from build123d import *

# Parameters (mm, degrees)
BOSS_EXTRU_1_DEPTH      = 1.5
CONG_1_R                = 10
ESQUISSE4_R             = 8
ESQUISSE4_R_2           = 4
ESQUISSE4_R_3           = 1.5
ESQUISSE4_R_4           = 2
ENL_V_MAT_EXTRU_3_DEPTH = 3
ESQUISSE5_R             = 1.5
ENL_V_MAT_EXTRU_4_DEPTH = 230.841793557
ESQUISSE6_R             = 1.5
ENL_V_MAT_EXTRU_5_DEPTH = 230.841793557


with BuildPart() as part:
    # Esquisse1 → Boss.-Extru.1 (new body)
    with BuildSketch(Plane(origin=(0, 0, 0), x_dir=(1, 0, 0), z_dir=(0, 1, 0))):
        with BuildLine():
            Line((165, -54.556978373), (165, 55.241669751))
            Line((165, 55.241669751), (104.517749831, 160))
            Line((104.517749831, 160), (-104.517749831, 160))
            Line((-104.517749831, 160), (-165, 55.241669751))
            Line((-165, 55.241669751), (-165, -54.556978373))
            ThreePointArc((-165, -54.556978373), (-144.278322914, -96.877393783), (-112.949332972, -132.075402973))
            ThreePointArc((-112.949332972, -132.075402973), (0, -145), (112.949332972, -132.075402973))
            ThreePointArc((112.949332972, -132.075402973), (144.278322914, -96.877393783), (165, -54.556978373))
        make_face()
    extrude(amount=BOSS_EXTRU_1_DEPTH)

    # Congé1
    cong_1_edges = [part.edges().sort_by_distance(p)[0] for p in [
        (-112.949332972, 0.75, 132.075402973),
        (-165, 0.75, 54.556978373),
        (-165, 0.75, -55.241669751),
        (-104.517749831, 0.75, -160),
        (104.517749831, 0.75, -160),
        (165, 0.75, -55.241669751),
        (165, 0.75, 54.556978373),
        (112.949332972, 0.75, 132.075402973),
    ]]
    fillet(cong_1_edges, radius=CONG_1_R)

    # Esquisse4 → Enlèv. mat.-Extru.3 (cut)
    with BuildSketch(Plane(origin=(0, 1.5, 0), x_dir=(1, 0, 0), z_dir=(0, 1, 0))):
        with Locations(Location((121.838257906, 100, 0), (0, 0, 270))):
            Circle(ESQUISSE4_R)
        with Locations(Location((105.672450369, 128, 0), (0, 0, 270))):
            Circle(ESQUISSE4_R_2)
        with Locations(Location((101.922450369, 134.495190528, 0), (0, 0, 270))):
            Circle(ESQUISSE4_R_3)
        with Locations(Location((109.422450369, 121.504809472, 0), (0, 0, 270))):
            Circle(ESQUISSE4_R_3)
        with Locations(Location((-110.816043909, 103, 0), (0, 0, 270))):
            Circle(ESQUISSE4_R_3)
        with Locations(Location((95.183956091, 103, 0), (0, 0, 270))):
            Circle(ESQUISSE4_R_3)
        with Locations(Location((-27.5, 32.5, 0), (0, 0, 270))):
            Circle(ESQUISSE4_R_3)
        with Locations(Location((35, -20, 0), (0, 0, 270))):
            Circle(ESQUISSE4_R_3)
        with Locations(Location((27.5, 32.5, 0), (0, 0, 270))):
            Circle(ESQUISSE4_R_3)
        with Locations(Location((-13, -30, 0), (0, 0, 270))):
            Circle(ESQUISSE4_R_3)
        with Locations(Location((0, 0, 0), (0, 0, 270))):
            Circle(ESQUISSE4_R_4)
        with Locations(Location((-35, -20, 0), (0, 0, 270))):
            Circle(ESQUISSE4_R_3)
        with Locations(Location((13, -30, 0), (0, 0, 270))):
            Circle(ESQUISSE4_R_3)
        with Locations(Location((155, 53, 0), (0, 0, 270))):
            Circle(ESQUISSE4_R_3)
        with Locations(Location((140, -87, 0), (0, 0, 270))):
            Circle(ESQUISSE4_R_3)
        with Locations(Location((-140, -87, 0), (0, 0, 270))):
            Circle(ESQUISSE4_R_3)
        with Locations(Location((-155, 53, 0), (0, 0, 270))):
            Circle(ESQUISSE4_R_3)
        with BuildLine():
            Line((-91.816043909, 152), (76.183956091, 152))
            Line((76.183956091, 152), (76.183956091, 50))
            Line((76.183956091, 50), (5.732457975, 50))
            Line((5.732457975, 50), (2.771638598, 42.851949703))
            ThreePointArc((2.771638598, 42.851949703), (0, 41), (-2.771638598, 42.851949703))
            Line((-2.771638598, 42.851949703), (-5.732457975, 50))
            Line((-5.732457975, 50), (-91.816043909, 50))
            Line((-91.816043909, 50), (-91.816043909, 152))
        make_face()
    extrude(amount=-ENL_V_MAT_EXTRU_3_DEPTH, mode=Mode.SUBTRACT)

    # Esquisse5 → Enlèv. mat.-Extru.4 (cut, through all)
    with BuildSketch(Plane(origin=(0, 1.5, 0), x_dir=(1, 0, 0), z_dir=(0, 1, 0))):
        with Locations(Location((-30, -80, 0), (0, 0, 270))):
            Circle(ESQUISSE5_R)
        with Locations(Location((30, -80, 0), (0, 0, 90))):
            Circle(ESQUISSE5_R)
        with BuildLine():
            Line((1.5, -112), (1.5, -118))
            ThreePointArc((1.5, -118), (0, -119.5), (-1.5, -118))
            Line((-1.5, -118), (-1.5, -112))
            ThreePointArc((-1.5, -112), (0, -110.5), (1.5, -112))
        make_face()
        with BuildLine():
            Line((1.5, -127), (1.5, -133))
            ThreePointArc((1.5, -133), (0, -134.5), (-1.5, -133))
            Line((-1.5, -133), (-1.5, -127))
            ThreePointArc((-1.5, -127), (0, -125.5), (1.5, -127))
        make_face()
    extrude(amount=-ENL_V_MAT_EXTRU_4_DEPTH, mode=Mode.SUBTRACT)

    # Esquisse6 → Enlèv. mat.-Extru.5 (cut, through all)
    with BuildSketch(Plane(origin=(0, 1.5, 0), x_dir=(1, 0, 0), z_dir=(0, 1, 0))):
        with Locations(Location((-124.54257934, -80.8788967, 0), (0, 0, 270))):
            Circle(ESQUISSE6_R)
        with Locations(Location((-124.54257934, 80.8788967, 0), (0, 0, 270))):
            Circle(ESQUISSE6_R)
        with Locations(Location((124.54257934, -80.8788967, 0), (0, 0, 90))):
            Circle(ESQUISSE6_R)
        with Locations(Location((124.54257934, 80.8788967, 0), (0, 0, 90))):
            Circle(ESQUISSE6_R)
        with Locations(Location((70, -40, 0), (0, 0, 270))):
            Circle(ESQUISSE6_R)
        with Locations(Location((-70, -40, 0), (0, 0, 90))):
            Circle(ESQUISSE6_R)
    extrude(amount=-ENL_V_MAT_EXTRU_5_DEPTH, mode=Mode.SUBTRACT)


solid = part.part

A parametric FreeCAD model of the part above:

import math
import FreeCAD as App
import Part
import Sketcher
from FreeCAD import Vector
Q = App.Units.Quantity


def edges_at(feature, points):
    """Names of the edges that pass closest to the given points."""
    edges = feature.Shape.Edges
    near = lambda p: min(range(len(edges)), key=lambda i: edges[i].distToShape(Part.Vertex(*p))[0])
    return sorted({f"Edge{near(p) + 1}" for p in points})

doc = App.newDocument("Part")
body = doc.addObject("PartDesign::Body", "Body")

# Sketch on XZ plane
sketch1 = body.newObject("Sketcher::SketchObject", "Sketch")
sketch1.AttachmentSupport = (doc.getObject("XZ_Plane"), [""])
sketch1.MapMode = "FlatFace"
sketch1.addGeometry([
    Part.LineSegment(Vector(165, 54.556978, 0), Vector(165, -55.24167, 0)),  # 0
    Part.LineSegment(Vector(165, -55.24167, 0), Vector(104.51775, -160, 0)),  # 1
    Part.LineSegment(Vector(104.51775, -160, 0), Vector(-104.51775, -160, 0)),  # 2
    Part.LineSegment(Vector(-104.51775, -160, 0), Vector(-165, -55.24167, 0)),  # 3
    Part.LineSegment(Vector(-165, -55.24167, 0), Vector(-165, 54.556978, 0)),  # 4
    Part.ArcOfCircle(Part.Circle(Vector(0, 0, 0), Vector(0, 0, 1), 173.785684), math.radians(130.536673), math.radians(161.703617)),  # 5
    Part.ArcOfCircle(Part.Circle(Vector(0, -355, 0), Vector(0, 0, 1), 500), math.radians(76.944271), math.radians(103.055729)),  # 6
    Part.ArcOfCircle(Part.Circle(Vector(0, 0, 0), Vector(0, 0, 1), 173.785684), math.radians(18.296383), math.radians(49.463327)),  # 7
], False)
sketch1.addConstraint([
    Sketcher.Constraint("Coincident", 0, 2, 1, 1),
    Sketcher.Constraint("Coincident", 1, 2, 2, 1),
    Sketcher.Constraint("Coincident", 2, 2, 3, 1),
    Sketcher.Constraint("Coincident", 3, 2, 4, 1),
    Sketcher.Constraint("Coincident", 4, 2, 5, 2),
    Sketcher.Constraint("Coincident", 5, 1, 6, 2),
    Sketcher.Constraint("Coincident", 6, 1, 7, 2),
    Sketcher.Constraint("Coincident", 7, 1, 0, 1),
    Sketcher.Constraint("Vertical", 0),
    Sketcher.Constraint("Horizontal", 2),
    Sketcher.Constraint("Vertical", 4),
    Sketcher.Constraint("Coincident", 5, 3, -1, 1),
    Sketcher.Constraint("Coincident", 7, 3, -1, 1),
    Sketcher.Constraint("Equal", 5, 7),
    Sketcher.Constraint("Symmetric", 0, 2, 3, 2, -2),
    Sketcher.Constraint("PointOnObject", 6, 3, -2),
    Sketcher.Constraint("Equal", 1, 3),
    Sketcher.Constraint("Radius", 6, Q("500 mm")),
    Sketcher.Constraint("Angle", 1, Q("-120 deg")),
    Sketcher.Constraint("DistanceY", 6, 3, -1, 1, Q("355 mm")),
    Sketcher.Constraint("DistanceX", -1, 1, 0, 2, Q("165 mm")),
    Sketcher.Constraint("DistanceY", 1, 2, -1, 1, Q("160 mm")),
    Sketcher.Constraint("DistanceX", 2, 2, 2, 1, Q("209.0355 mm")),
    Sketcher.Constraint("Radius", 5, Q("173.785684 mm")),
])
pad1 = body.newObject("PartDesign::Pad", "Pad")
pad1.Profile = sketch1
pad1.Length = 1.5
pad1.Reversed = True
doc.recompute()

fillet = body.newObject("PartDesign::Fillet", "Fillet")
fillet.Base = (pad1, edges_at(pad1, [
    (-112.949, 0.75, 132.075),
    (-165, 0.75, 54.557),
    (-165, 0.75, -55.242),
    (-104.518, 0.75, -160),
    (104.518, 0.75, -160),
    (165, 0.75, -55.242),
    (165, 0.75, 54.557),
    (112.949, 0.75, 132.075),
]))
fillet.Radius = 10

# Sketch on XZ plane
sketch2 = body.newObject("Sketcher::SketchObject", "Sketch001")
sketch2.AttachmentSupport = (doc.getObject("XZ_Plane"), [""])
sketch2.MapMode = "FlatFace"
sketch2.AttachmentOffset = App.Placement(Vector(0, 0, -1.5), App.Rotation())
sketch2.addGeometry([
    Part.Circle(Vector(121.838258, -100, 0), Vector(0, 0, 1), 8),  # 0
    Part.Circle(Vector(105.67245, -128, 0), Vector(0, 0, 1), 4),  # 1
    Part.Circle(Vector(101.92245, -134.495191, 0), Vector(0, 0, 1), 1.5),  # 2
    Part.Circle(Vector(109.42245, -121.504809, 0), Vector(0, 0, 1), 1.5),  # 3
    Part.Circle(Vector(-110.816044, -103, 0), Vector(0, 0, 1), 1.5),  # 4
    Part.Circle(Vector(95.183956, -103, 0), Vector(0, 0, 1), 1.5),  # 5
    Part.Circle(Vector(-27.5, -32.5, 0), Vector(0, 0, 1), 1.5),  # 6
    Part.Circle(Vector(35, 20, 0), Vector(0, 0, 1), 1.5),  # 7
    Part.Circle(Vector(27.5, -32.5, 0), Vector(0, 0, 1), 1.5),  # 8
    Part.Circle(Vector(-13, 30, 0), Vector(0, 0, 1), 1.5),  # 9
    Part.Circle(Vector(0, 0, 0), Vector(0, 0, 1), 2),  # 10
    Part.Circle(Vector(-35, 20, 0), Vector(0, 0, 1), 1.5),  # 11
    Part.Circle(Vector(13, 30, 0), Vector(0, 0, 1), 1.5),  # 12
    Part.Circle(Vector(155, -53, 0), Vector(0, 0, 1), 1.5),  # 13
    Part.Circle(Vector(140, 87, 0), Vector(0, 0, 1), 1.5),  # 14
    Part.Circle(Vector(-140, 87, 0), Vector(0, 0, 1), 1.5),  # 15
    Part.Circle(Vector(-155, -53, 0), Vector(0, 0, 1), 1.5),  # 16
    Part.LineSegment(Vector(76.183956, -152, 0), Vector(-91.816044, -152, 0)),  # 17
    Part.LineSegment(Vector(-91.816044, -152, 0), Vector(-91.816044, -50, 0)),  # 18
    Part.LineSegment(Vector(-91.816044, -50, 0), Vector(-5.732458, -50, 0)),  # 19
    Part.LineSegment(Vector(-5.732458, -50, 0), Vector(-2.771639, -42.85195, 0)),  # 20
    Part.ArcOfCircle(Part.Circle(Vector(0, -44, 0), Vector(0, 0, 1), 3), math.radians(22.5), math.radians(157.5)),  # 21
    Part.LineSegment(Vector(2.771639, -42.85195, 0), Vector(5.732458, -50, 0)),  # 22
    Part.LineSegment(Vector(5.732458, -50, 0), Vector(76.183956, -50, 0)),  # 23
    Part.LineSegment(Vector(76.183956, -50, 0), Vector(76.183956, -152, 0)),  # 24
], False)
sketch2.addConstraint([
    Sketcher.Constraint("Coincident", 17, 2, 18, 1),
    Sketcher.Constraint("Coincident", 18, 2, 19, 1),
    Sketcher.Constraint("Coincident", 19, 2, 20, 1),
    Sketcher.Constraint("Tangent", 20, 2, 21, 2),
    Sketcher.Constraint("Tangent", 21, 1, 22, 1),
    Sketcher.Constraint("Coincident", 22, 2, 23, 1),
    Sketcher.Constraint("Coincident", 23, 2, 24, 1),
    Sketcher.Constraint("Coincident", 24, 2, 17, 1),
    Sketcher.Constraint("Horizontal", 17),
    Sketcher.Constraint("Vertical", 18),
    Sketcher.Constraint("Horizontal", 19),
    Sketcher.Constraint("Horizontal", 23),
    Sketcher.Constraint("Vertical", 24),
    Sketcher.Constraint("Coincident", 10, 3, -1, 1),
    Sketcher.Constraint("Equal", 2, 3),
    Sketcher.Constraint("Equal", 3, 4),
    Sketcher.Constraint("Equal", 4, 5),
    Sketcher.Constraint("Equal", 5, 6),
    Sketcher.Constraint("Equal", 6, 7),
    Sketcher.Constraint("Equal", 7, 8),
    Sketcher.Constraint("Equal", 8, 9),
    Sketcher.Constraint("Equal", 9, 11),
    Sketcher.Constraint("Equal", 11, 12),
    Sketcher.Constraint("Equal", 12, 13),
    Sketcher.Constraint("Equal", 13, 14),
    Sketcher.Constraint("Equal", 14, 15),
    Sketcher.Constraint("Equal", 15, 16),
    Sketcher.Constraint("Symmetric", 6, 3, 8, 3, -2),
    Sketcher.Constraint("Symmetric", 7, 3, 11, 3, -2),
    Sketcher.Constraint("Symmetric", 9, 3, 12, 3, -2),
    Sketcher.Constraint("Symmetric", 14, 3, 15, 3, -2),
    Sketcher.Constraint("Symmetric", 13, 3, 16, 3, -2),
    Sketcher.Constraint("Symmetric", 20, 2, 21, 1, -2),
    Sketcher.Constraint("Horizontal", 4, 3, 5, 3),
    Sketcher.Constraint("Horizontal", 19, 2, 22, 2),
    Sketcher.Constraint("Diameter", 0, Q("16 mm")),
    Sketcher.Constraint("Diameter", 1, Q("8 mm")),
    Sketcher.Constraint("Diameter", 2, Q("3 mm")),
    Sketcher.Constraint("Diameter", 10, Q("4 mm")),
    Sketcher.Constraint("Radius", 21, Q("3 mm")),
    Sketcher.Constraint("DistanceX", 17, 2, 17, 1, Q("168 mm")),
    Sketcher.Constraint("DistanceY", 18, 1, 18, 2, Q("102 mm")),
    Sketcher.Constraint("DistanceY", 0, 3, -1, 1, Q("100 mm")),
    Sketcher.Constraint("DistanceY", 1, 3, -1, 1, Q("128 mm")),
    Sketcher.Constraint("DistanceY", 4, 3, -1, 1, Q("103 mm")),
    Sketcher.Constraint("DistanceX", -1, 1, 7, 3, Q("35 mm")),
    Sketcher.Constraint("DistanceY", -1, 1, 7, 3, Q("20 mm")),
    Sketcher.Constraint("DistanceX", 9, 3, -1, 1, Q("13 mm")),
    Sketcher.Constraint("DistanceY", -1, 1, 9, 3, Q("30 mm")),
    Sketcher.Constraint("DistanceX", -1, 1, 13, 3, Q("155 mm")),
    Sketcher.Constraint("DistanceY", 13, 3, -1, 1, Q("53 mm")),
    Sketcher.Constraint("DistanceX", -1, 1, 14, 3, Q("140 mm")),
    Sketcher.Constraint("DistanceY", -1, 1, 14, 3, Q("87 mm")),
    Sketcher.Constraint("DistanceY", 21, 3, -1, 1, Q("44 mm")),
    Sketcher.Constraint("DistanceY", 17, 2, -1, 1, Q("152 mm")),
    Sketcher.Constraint("Angle", 20, Q("67.5 deg")),
    Sketcher.Constraint("DistanceX", 4, 3, 5, 3, Q("206 mm")),
    Sketcher.Constraint("DistanceX", 6, 3, 8, 3, Q("55 mm")),
    Sketcher.Constraint("DistanceX", 4, 3, 17, 2, Q("19 mm")),
    Sketcher.Constraint("DistanceY", 6, 3, -1, 1, Q("32.5 mm")),
    Sketcher.Constraint("DistanceX", 2, 3, 3, 3, Q("7.5 mm")),
    Sketcher.Constraint("DistanceX", 2, 3, 1, 3, Q("3.75 mm")),
    Sketcher.Constraint("DistanceX", 23, 1, 23, 2, Q("70.451498 mm")),
    Sketcher.Constraint("DistanceX", 4, 3, 0, 3, Q("232.654302 mm")),
    Sketcher.Constraint("DistanceX", -1, 1, 1, 3, Q("105.67245 mm")),
    Sketcher.Constraint("DistanceY", 2, 3, -1, 1, Q("134.495191 mm")),
    Sketcher.Constraint("DistanceY", 3, 3, -1, 1, Q("121.504809 mm")),
])
pocket1 = body.newObject("PartDesign::Pocket", "Pocket")
pocket1.Profile = sketch2
pocket1.Length = 3
pocket1.Reversed = True

# Sketch on XZ plane
sketch3 = body.newObject("Sketcher::SketchObject", "Sketch002")
sketch3.AttachmentSupport = (doc.getObject("XZ_Plane"), [""])
sketch3.MapMode = "FlatFace"
sketch3.AttachmentOffset = App.Placement(Vector(0, 0, -1.5), App.Rotation())
sketch3.addGeometry([
    Part.Circle(Vector(-30, 80, 0), Vector(0, 0, 1), 1.5),  # 0
    Part.Circle(Vector(30, 80, 0), Vector(0, 0, 1), 1.5),  # 1
    Part.LineSegment(Vector(1.5, 118, 0), Vector(1.5, 112, 0)),  # 2
    Part.ArcOfCircle(Part.Circle(Vector(0, 112, 0), Vector(0, 0, 1), 1.5), math.radians(180), math.radians(360)),  # 3
    Part.LineSegment(Vector(-1.5, 112, 0), Vector(-1.5, 118, 0)),  # 4
    Part.ArcOfCircle(Part.Circle(Vector(0, 118, 0), Vector(0, 0, 1), 1.5), math.radians(0), math.radians(180)),  # 5
    Part.LineSegment(Vector(1.5, 133, 0), Vector(1.5, 127, 0)),  # 6
    Part.ArcOfCircle(Part.Circle(Vector(0, 127, 0), Vector(0, 0, 1), 1.5), math.radians(180), math.radians(360)),  # 7
    Part.LineSegment(Vector(-1.5, 127, 0), Vector(-1.5, 133, 0)),  # 8
    Part.ArcOfCircle(Part.Circle(Vector(0, 133, 0), Vector(0, 0, 1), 1.5), math.radians(0), math.radians(180)),  # 9
], False)
sketch3.addConstraint([
    Sketcher.Constraint("Tangent", 2, 2, 3, 2),
    Sketcher.Constraint("Tangent", 3, 1, 4, 1),
    Sketcher.Constraint("Tangent", 4, 2, 5, 2),
    Sketcher.Constraint("Tangent", 5, 1, 2, 1),
    Sketcher.Constraint("Tangent", 6, 2, 7, 2),
    Sketcher.Constraint("Tangent", 7, 1, 8, 1),
    Sketcher.Constraint("Tangent", 8, 2, 9, 2),
    Sketcher.Constraint("Tangent", 9, 1, 6, 1),
    Sketcher.Constraint("Vertical", 2),
    Sketcher.Constraint("Vertical", 4),
    Sketcher.Constraint("Vertical", 6),
    Sketcher.Constraint("Vertical", 8),
    Sketcher.Constraint("Equal", 0, 1),
    Sketcher.Constraint("Equal", 1, 3),
    Sketcher.Constraint("Equal", 5, 7),
    Sketcher.Constraint("Symmetric", 0, 3, 1, 3, -2),
    Sketcher.Constraint("PointOnObject", 3, 3, -2),
    Sketcher.Constraint("PointOnObject", 7, 3, -2),
    Sketcher.Constraint("Equal", 4, 6),
    Sketcher.Constraint("Diameter", 0, Q("3 mm")),
    Sketcher.Constraint("DistanceY", 2, 2, 2, 1, Q("6 mm")),
    Sketcher.Constraint("DistanceX", 0, 3, -1, 1, Q("30 mm")),
    Sketcher.Constraint("DistanceY", -1, 1, 0, 3, Q("80 mm")),
    Sketcher.Constraint("DistanceY", -1, 1, 3, 3, Q("112 mm")),
    Sketcher.Constraint("DistanceY", -1, 1, 7, 3, Q("127 mm")),
])
pocket2 = body.newObject("PartDesign::Pocket", "Pocket001")
pocket2.Profile = sketch3
pocket2.Type = "ThroughAll"
pocket2.Reversed = True

# Sketch on XZ plane
sketch4 = body.newObject("Sketcher::SketchObject", "Sketch003")
sketch4.AttachmentSupport = (doc.getObject("XZ_Plane"), [""])
sketch4.MapMode = "FlatFace"
sketch4.AttachmentOffset = App.Placement(Vector(0, 0, -1.5), App.Rotation())
sketch4.addGeometry([
    Part.Circle(Vector(-124.542579, 80.878897, 0), Vector(0, 0, 1), 1.5),  # 0
    Part.Circle(Vector(-124.542579, -80.878897, 0), Vector(0, 0, 1), 1.5),  # 1
    Part.Circle(Vector(124.542579, 80.878897, 0), Vector(0, 0, 1), 1.5),  # 2
    Part.Circle(Vector(124.542579, -80.878897, 0), Vector(0, 0, 1), 1.5),  # 3
    Part.Circle(Vector(70, 40, 0), Vector(0, 0, 1), 1.5),  # 4
    Part.Circle(Vector(-70, 40, 0), Vector(0, 0, 1), 1.5),  # 5
], False)
sketch4.addConstraint([
    Sketcher.Constraint("Equal", 0, 1),
    Sketcher.Constraint("Equal", 1, 2),
    Sketcher.Constraint("Equal", 2, 3),
    Sketcher.Constraint("Equal", 3, 4),
    Sketcher.Constraint("Equal", 4, 5),
    Sketcher.Constraint("Symmetric", 1, 3, 2, 3, -1, 1),
    Sketcher.Constraint("Symmetric", 0, 3, 3, 3, -1, 1),
    Sketcher.Constraint("Symmetric", 0, 3, 2, 3, -2),
    Sketcher.Constraint("Symmetric", 4, 3, 5, 3, -2),
    Sketcher.Constraint("Diameter", 0, Q("3 mm")),
    Sketcher.Constraint("DistanceX", -1, 1, 4, 3, Q("70 mm")),
    Sketcher.Constraint("DistanceY", -1, 1, 4, 3, Q("40 mm")),
    Sketcher.Constraint("DistanceX", 0, 3, -1, 1, Q("124.542579 mm")),
    Sketcher.Constraint("DistanceY", -1, 1, 0, 3, Q("80.878897 mm")),
])
pocket3 = body.newObject("PartDesign::Pocket", "Pocket002")
pocket3.Profile = sketch4
pocket3.Type = "ThroughAll"
pocket3.Reversed = True

doc.recompute()
